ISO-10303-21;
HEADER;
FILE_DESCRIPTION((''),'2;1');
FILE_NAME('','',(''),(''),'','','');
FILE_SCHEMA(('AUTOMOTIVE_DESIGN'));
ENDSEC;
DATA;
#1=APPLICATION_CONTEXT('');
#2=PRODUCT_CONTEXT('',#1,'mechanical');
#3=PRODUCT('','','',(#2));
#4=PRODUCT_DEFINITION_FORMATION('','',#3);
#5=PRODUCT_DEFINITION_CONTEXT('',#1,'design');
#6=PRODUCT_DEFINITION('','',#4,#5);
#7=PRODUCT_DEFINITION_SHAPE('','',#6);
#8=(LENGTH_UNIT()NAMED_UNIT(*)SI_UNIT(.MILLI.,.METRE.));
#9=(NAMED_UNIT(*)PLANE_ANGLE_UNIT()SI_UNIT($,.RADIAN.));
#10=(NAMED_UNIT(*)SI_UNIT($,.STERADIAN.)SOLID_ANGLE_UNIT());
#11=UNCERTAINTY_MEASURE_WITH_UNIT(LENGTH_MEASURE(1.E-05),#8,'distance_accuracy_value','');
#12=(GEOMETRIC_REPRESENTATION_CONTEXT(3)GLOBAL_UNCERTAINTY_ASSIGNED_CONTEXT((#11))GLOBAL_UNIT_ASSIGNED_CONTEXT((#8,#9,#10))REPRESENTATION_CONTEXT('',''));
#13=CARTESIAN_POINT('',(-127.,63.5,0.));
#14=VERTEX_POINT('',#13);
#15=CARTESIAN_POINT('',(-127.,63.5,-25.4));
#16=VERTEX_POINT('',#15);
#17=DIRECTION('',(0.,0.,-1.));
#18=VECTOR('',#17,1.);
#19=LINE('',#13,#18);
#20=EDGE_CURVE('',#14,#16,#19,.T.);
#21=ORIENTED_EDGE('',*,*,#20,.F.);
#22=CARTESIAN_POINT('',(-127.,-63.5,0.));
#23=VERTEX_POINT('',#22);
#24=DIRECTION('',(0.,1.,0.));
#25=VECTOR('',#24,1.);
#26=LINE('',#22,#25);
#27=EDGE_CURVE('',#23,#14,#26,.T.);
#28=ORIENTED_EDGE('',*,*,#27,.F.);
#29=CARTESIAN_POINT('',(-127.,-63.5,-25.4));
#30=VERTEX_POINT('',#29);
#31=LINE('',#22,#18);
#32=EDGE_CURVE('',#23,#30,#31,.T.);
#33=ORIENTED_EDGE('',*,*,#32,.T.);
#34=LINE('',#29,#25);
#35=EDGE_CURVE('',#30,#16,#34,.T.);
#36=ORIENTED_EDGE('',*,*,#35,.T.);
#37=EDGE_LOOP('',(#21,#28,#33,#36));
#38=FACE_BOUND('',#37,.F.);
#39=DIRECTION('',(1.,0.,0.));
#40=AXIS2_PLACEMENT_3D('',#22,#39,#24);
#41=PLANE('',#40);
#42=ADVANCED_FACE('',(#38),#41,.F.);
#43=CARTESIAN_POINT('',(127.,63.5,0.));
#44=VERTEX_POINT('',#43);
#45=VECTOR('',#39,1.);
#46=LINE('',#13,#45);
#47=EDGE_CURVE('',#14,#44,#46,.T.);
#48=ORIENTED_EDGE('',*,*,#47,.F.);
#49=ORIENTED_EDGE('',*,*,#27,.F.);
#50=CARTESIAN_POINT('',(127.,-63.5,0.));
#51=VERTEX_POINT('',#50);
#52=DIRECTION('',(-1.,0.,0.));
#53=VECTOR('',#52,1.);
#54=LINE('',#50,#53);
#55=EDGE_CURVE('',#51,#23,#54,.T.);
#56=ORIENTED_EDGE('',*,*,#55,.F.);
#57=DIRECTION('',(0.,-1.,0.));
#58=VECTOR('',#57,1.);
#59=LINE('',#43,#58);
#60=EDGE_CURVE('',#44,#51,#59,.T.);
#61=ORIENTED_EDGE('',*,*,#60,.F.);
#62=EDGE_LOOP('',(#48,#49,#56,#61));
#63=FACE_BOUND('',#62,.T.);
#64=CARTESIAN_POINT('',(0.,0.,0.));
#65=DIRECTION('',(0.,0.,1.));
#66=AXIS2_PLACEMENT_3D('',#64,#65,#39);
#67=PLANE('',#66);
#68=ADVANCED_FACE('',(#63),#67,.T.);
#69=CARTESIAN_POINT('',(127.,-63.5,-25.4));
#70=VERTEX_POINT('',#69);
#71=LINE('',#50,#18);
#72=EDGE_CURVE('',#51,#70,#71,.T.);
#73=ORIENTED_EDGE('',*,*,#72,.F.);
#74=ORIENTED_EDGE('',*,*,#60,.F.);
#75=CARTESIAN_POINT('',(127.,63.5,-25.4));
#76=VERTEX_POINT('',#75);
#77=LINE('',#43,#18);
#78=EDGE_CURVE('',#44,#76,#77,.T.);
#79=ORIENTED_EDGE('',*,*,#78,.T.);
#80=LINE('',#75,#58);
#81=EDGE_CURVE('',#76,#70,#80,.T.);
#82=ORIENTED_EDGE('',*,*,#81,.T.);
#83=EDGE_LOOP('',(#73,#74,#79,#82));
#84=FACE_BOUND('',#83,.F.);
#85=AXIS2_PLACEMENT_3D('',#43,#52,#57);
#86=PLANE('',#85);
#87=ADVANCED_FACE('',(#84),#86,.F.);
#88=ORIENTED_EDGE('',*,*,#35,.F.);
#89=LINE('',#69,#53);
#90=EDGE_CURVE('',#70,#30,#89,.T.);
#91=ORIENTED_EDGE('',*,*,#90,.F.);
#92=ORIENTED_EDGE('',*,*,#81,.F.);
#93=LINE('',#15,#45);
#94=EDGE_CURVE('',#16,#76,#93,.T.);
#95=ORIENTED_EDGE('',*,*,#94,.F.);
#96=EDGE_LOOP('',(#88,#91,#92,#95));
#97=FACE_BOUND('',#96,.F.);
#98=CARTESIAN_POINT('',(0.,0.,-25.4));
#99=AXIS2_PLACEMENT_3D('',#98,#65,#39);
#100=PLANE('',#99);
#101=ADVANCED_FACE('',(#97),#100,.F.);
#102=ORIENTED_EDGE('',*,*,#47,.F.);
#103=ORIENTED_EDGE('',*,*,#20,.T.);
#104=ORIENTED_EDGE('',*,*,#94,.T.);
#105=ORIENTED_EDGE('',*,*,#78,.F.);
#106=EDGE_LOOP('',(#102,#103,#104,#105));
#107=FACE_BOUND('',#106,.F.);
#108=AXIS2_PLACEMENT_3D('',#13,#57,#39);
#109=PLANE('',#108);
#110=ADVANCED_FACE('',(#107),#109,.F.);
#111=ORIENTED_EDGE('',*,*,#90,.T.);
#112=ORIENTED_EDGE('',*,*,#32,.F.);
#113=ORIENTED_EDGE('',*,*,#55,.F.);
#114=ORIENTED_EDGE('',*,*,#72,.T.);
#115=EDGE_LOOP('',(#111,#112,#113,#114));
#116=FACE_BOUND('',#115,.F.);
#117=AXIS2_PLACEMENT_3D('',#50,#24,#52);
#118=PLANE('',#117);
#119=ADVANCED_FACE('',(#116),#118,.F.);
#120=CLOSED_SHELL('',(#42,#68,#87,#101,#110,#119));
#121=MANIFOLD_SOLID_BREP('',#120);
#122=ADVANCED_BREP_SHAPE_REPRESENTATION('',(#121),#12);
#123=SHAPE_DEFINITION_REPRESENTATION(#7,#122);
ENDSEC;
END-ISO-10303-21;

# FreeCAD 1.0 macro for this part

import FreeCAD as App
import Part
import Sketcher
Q = App.Units.Quantity

doc = App.newDocument("Part")
params = doc.addObject("Spreadsheet::Sheet", "Params")
for row, (alias, value) in enumerate([
    ("sketch1_width", "10 in"),
    ("sketch1_height", "5 in"),
    ("pad1_length", "1 in"),
], start=1):
    params.set(f"A{row}", alias)
    params.set(f"B{row}", "=" + value)
    params.setAlias(f"B{row}", alias)

body = doc.addObject("PartDesign::Body", "Body")

# Sketch on XY plane
sketch1 = doc.addObject("Sketcher::SketchObject", "Sketch")
body.addObject(sketch1)
sketch1.AttachmentSupport = (doc.XY_Plane, [""])
sketch1.MapMode = "FlatFace"
sketch1.addGeometry(Part.LineSegment(App.Vector(127, 63.5, 0), App.Vector(-127, 63.5, 0)), False)
sketch1.addGeometry(Part.LineSegment(App.Vector(-127, 63.5, 0), App.Vector(-127, -63.5, 0)), False)
sketch1.addGeometry(Part.LineSegment(App.Vector(-127, -63.5, 0), App.Vector(127, -63.5, 0)), False)
sketch1.addGeometry(Part.LineSegment(App.Vector(127, -63.5, 0), App.Vector(127, 63.5, 0)), False)
sketch1.addConstraint(Sketcher.Constraint("Coincident", 0, 2, 1, 1))
sketch1.addConstraint(Sketcher.Constraint("Coincident", 1, 2, 2, 1))
sketch1.addConstraint(Sketcher.Constraint("Coincident", 2, 2, 3, 1))
sketch1.addConstraint(Sketcher.Constraint("Coincident", 3, 2, 0, 1))
sketch1.addConstraint(Sketcher.Constraint("Horizontal", 0))
sketch1.addConstraint(Sketcher.Constraint("Vertical", 1))
sketch1.addConstraint(Sketcher.Constraint("Horizontal", 2))
sketch1.addConstraint(Sketcher.Constraint("Vertical", 3))
sketch1.addConstraint(Sketcher.Constraint("Symmetric", 0, 2, 2, 2, -1, 1))
sketch1.addConstraint(Sketcher.Constraint("DistanceX", 0, 2, 0, 1, Q("10 in")))
sketch1.addConstraint(Sketcher.Constraint("DistanceY", 1, 2, 1, 1, Q("5 in")))
sketch1.setExpression("Constraints[9]", "Params.sketch1_width")
sketch1.setExpression("Constraints[10]", "Params.sketch1_height")
pad1 = doc.addObject("PartDesign::Pad", "Pad")
body.addObject(pad1)
pad1.Profile = sketch1
pad1.setExpression("Length", "Params.pad1_length")
pad1.Reversed = True

doc.recompute()
